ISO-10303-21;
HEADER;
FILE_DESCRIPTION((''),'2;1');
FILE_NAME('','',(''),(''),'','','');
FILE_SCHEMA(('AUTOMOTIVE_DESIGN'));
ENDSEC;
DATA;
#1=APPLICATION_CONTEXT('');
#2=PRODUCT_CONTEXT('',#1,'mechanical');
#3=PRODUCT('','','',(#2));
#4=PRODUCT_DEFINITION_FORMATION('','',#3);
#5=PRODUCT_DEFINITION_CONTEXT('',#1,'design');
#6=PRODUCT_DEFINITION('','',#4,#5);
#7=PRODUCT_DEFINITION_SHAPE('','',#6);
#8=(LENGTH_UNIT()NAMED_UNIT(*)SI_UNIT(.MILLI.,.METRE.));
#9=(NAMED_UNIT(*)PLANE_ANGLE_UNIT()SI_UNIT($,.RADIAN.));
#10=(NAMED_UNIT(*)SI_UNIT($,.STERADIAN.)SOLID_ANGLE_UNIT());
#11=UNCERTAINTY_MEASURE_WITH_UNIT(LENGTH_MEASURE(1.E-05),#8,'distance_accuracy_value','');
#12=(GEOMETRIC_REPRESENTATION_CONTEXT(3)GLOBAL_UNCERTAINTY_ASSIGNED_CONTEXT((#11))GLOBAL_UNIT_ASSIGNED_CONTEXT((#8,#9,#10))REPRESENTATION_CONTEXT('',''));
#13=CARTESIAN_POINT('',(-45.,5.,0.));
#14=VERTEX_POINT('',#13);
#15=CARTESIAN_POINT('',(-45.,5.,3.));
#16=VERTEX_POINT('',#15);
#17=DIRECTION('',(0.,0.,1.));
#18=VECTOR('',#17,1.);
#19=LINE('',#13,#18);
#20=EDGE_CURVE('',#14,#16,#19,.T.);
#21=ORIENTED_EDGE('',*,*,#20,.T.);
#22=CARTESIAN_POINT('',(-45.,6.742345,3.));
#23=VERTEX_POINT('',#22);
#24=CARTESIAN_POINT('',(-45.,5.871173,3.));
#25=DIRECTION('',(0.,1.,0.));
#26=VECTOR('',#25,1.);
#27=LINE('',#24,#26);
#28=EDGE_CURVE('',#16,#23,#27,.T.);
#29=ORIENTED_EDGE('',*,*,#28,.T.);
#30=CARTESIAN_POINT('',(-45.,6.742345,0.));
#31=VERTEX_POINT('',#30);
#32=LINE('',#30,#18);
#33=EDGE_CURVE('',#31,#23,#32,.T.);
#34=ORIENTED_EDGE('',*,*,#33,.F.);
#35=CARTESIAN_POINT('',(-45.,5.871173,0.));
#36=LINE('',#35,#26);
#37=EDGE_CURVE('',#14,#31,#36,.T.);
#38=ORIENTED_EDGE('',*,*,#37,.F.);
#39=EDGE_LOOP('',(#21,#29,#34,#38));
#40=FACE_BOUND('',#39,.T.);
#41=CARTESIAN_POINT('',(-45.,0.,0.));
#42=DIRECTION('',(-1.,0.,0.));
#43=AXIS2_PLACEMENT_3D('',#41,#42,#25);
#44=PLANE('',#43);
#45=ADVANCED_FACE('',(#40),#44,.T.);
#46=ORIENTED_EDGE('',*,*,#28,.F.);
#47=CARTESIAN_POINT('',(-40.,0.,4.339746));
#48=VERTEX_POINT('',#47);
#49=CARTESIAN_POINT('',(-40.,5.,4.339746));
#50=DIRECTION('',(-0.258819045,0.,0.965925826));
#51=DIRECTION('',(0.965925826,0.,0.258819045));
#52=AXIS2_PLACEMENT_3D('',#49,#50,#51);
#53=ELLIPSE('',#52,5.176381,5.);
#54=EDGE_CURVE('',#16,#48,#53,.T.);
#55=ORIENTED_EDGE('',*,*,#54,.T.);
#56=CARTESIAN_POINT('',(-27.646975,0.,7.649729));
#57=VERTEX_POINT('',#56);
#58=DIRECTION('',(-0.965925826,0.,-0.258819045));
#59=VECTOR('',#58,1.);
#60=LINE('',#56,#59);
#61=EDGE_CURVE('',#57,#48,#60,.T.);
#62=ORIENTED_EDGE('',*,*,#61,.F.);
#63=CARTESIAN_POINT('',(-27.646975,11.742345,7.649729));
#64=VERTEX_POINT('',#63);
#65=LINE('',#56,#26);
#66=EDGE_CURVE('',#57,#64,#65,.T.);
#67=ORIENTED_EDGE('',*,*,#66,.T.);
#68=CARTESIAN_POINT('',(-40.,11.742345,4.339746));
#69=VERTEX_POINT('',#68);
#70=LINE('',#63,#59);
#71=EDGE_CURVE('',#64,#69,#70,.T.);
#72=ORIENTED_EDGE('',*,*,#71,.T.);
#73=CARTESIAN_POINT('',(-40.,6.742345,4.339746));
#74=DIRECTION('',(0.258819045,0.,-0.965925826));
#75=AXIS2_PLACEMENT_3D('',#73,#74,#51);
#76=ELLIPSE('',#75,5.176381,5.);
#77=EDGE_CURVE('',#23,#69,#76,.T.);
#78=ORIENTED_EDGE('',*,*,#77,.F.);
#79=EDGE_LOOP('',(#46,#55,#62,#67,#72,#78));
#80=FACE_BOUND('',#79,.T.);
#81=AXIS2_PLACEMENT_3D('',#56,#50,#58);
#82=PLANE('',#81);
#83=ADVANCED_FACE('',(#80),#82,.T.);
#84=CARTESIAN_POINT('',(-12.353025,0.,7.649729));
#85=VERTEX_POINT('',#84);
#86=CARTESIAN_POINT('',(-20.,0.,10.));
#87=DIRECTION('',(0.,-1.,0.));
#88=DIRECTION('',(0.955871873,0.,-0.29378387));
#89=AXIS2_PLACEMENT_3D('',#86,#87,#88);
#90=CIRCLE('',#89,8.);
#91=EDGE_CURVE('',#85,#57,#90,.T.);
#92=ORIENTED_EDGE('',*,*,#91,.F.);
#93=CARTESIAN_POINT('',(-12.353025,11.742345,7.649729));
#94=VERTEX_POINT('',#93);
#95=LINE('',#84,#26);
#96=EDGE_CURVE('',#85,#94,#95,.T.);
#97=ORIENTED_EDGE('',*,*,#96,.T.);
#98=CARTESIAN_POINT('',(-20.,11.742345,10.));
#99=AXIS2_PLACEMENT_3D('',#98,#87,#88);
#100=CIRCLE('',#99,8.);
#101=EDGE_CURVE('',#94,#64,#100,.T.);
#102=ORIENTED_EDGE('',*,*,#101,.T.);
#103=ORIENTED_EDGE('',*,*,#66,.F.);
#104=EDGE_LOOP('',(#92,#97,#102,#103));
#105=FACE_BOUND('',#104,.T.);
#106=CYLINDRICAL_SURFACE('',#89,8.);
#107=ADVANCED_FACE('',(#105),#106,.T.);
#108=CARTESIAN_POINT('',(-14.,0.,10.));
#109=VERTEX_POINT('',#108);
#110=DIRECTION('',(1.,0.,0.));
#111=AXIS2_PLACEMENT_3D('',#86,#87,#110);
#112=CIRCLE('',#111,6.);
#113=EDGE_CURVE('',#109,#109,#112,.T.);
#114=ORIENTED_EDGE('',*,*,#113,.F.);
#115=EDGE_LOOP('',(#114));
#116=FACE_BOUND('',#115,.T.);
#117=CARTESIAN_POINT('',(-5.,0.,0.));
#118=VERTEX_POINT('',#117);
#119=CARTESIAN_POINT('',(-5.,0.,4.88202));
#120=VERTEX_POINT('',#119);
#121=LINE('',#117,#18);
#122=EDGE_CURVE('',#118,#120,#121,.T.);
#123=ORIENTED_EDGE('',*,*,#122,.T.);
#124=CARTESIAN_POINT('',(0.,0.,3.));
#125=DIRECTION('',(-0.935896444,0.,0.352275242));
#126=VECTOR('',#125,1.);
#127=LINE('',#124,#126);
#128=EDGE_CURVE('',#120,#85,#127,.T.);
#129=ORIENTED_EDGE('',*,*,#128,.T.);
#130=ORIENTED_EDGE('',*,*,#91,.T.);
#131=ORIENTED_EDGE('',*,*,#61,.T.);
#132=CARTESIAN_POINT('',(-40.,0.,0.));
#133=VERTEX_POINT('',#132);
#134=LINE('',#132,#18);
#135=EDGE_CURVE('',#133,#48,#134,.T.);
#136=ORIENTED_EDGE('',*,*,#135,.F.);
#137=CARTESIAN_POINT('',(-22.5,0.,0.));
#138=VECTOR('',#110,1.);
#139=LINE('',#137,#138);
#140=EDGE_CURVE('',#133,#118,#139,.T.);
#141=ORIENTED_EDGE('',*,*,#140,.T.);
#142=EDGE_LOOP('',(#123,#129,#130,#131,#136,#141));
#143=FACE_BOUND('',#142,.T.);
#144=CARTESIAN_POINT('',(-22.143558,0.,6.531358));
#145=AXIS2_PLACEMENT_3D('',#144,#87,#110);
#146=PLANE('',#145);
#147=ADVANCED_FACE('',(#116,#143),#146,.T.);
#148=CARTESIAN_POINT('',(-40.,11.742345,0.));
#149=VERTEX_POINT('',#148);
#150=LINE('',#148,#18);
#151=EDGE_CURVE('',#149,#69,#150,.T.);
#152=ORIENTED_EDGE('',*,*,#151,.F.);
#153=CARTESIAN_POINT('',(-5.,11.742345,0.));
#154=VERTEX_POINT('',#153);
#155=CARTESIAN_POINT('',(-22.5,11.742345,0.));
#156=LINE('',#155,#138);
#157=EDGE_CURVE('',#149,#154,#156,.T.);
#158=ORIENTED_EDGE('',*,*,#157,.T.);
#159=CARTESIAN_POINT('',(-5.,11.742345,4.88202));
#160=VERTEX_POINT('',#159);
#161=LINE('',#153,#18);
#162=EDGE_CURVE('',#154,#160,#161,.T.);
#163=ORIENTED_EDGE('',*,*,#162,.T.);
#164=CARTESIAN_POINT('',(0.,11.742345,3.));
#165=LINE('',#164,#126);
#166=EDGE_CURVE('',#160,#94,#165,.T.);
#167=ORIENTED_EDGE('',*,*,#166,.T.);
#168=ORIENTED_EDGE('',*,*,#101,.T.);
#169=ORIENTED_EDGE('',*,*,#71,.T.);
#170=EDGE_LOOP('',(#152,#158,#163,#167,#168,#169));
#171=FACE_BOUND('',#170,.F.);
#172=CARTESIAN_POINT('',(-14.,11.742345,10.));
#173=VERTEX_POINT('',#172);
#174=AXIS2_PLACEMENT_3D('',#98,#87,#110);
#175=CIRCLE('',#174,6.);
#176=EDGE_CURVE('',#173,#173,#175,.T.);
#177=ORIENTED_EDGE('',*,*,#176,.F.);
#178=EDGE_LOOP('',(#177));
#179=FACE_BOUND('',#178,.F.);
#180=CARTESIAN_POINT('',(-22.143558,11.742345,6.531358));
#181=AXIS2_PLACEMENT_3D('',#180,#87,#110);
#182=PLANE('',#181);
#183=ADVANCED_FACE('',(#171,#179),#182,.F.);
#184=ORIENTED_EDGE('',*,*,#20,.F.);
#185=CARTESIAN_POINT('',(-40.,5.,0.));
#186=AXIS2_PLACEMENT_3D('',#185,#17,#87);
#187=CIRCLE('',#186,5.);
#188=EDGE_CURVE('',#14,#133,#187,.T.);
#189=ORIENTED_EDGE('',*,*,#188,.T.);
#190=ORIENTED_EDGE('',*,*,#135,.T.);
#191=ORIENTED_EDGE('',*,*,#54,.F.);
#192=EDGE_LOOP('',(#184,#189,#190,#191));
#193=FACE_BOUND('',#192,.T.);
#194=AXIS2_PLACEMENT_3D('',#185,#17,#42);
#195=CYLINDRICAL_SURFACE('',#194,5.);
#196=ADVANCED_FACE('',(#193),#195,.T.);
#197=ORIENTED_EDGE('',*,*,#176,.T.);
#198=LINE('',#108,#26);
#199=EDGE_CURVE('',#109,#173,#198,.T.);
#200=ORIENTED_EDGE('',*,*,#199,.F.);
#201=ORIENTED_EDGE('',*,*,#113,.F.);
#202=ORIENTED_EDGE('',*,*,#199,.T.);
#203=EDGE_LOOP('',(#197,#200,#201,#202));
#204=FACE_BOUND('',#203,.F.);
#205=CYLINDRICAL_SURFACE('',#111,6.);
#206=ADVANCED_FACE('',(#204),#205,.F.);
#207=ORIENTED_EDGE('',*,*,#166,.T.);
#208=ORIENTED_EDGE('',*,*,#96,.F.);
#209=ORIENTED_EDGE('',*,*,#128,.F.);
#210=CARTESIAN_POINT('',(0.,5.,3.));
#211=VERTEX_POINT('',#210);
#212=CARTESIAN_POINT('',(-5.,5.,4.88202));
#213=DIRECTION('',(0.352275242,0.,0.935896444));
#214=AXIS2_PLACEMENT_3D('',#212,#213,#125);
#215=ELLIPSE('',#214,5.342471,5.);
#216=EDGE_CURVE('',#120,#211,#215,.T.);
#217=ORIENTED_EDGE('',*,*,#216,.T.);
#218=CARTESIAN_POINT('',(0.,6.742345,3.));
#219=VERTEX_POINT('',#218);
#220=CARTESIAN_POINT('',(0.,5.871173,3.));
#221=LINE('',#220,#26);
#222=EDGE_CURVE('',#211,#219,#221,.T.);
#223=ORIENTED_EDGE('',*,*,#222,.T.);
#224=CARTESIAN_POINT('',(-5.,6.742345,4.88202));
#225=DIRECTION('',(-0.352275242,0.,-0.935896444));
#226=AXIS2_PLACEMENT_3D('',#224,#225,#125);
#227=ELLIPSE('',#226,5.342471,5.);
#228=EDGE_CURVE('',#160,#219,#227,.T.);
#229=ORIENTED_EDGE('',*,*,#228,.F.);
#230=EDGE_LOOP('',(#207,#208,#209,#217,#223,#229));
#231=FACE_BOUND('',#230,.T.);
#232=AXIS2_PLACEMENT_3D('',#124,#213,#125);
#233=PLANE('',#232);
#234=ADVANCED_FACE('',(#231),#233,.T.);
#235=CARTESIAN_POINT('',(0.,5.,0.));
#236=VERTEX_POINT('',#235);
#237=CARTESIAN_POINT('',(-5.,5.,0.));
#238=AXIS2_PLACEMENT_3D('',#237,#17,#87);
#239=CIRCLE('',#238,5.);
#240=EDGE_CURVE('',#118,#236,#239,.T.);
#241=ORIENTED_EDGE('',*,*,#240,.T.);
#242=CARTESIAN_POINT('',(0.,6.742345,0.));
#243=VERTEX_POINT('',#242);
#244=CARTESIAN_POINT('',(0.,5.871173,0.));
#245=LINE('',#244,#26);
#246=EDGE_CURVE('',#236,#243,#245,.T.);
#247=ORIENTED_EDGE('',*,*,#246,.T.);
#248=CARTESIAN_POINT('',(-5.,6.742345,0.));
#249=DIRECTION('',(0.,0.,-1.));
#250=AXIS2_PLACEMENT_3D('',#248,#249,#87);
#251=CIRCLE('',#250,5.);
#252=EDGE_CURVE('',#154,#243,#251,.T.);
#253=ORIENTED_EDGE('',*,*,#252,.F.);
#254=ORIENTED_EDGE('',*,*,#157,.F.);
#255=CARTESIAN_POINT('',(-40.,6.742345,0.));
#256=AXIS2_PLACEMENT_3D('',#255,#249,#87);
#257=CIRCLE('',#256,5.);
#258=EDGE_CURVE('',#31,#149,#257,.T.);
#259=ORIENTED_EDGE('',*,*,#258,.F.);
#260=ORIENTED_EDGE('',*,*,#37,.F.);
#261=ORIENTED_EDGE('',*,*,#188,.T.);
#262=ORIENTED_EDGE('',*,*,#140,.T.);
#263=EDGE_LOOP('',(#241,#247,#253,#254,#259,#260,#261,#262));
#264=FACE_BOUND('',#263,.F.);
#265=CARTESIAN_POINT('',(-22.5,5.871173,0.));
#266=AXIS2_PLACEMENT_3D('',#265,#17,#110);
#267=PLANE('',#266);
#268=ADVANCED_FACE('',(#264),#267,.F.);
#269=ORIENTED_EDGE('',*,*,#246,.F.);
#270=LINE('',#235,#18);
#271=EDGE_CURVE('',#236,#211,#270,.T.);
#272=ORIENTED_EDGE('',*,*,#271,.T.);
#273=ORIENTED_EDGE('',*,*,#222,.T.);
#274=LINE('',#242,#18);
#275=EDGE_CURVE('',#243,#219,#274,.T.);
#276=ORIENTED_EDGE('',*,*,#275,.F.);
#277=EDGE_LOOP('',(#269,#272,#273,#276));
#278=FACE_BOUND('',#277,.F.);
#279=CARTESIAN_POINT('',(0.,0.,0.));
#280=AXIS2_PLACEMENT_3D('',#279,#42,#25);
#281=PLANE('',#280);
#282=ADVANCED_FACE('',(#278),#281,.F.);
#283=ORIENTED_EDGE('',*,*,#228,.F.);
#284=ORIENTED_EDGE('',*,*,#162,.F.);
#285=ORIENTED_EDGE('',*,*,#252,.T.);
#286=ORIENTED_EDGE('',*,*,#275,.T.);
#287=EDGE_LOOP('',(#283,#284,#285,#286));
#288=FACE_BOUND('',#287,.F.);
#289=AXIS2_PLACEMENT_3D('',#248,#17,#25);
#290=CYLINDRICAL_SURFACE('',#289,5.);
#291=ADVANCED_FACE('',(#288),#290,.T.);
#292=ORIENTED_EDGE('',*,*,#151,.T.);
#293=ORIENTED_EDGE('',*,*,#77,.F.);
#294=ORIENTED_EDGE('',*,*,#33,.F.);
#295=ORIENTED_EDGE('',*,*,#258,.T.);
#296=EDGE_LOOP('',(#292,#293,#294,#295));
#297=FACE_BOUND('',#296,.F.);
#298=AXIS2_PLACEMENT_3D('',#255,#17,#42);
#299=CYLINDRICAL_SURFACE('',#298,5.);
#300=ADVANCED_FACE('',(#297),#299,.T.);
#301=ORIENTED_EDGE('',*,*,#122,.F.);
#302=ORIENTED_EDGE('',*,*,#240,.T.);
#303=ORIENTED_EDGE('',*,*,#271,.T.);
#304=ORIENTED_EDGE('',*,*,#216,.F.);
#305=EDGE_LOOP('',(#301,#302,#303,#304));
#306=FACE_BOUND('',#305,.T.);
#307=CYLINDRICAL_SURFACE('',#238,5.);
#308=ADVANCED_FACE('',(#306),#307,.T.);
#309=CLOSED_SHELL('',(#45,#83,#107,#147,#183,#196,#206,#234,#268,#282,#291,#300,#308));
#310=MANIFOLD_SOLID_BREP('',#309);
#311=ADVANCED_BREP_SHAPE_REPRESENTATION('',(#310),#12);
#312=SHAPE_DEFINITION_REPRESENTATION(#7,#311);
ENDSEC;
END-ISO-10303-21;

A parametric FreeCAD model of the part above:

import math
import FreeCAD as App
import Part
import Sketcher

V = App.Vector
Q = App.Units.Quantity


def edges_at(feature, points):
    """Names of the edges that pass closest to the given points."""
    edges = feature.Shape.Edges
    near = lambda p: min(range(len(edges)), key=lambda i: edges[i].distToShape(Part.Vertex(*p))[0])
    return sorted({f"Edge{near(p) + 1}" for p in points})


def add_polygon(sketch, points):
    """Adds a closed chain of lines whose ends are joined by coincident constraints."""
    first, n = sketch.GeometryCount, len(points)
    for a, b in zip(points, points[1:] + points[:1]):
        sketch.addGeometry(Part.LineSegment(App.Vector(*a, 0), App.Vector(*b, 0)), False)
    for i in range(n):
        sketch.addConstraint(Sketcher.Constraint("Coincident", first + i, 2, first + (i + 1) % n, 1))

doc = App.newDocument("Part")
body = doc.addObject("PartDesign::Body", "Body")

# Sketch on XY plane
sketch1 = body.newObject("Sketcher::SketchObject", "Sketch")
sketch1.AttachmentSupport = (doc.getObject("XY_Plane"), [""])
sketch1.MapMode = "FlatFace"
add_polygon(sketch1, [(-45, 11.742345), (-45, 0), (0, 0), (0, 11.742345)])  # lines 0-3
sketch1.addConstraint([
    Sketcher.Constraint("Vertical", 0),
    Sketcher.Constraint("Horizontal", 1),
    Sketcher.Constraint("Vertical", 2),
    Sketcher.Constraint("Horizontal", 3),
    Sketcher.Constraint("Coincident", 1, 2, -1, 1),
    Sketcher.Constraint("DistanceX", 1, 1, 1, 2, 45.0),
    Sketcher.Constraint("DistanceY", 0, 2, 0, 1, 11.742345),
])
pad1 = body.newObject("PartDesign::Pad", "Pad")
pad1.Profile = sketch1
pad1.Length = 3

# Sketch on XZ plane
sketch2 = body.newObject("Sketcher::SketchObject", "Sketch001")
sketch2.AttachmentSupport = (doc.getObject("XZ_Plane"), [""])
sketch2.MapMode = "FlatFace"
sketch2.addGeometry([
    Part.LineSegment(V(-45, 3, 0), V(0, 3, 0)),  # 0
    Part.LineSegment(V(0, 3, 0), V(-12.353025, 7.649729, 0)),  # 1
    Part.ArcOfCircle(Part.Circle(V(-20, 10, 0), V(0, 0, 1), 8), math.radians(-17.084627), math.radians(197.084627)),  # 2
    Part.LineSegment(V(-27.646975, 7.649729, 0), V(-45, 3, 0)),  # 3
    Part.Circle(V(-20, 10, 0), V(0, 0, 1), 6),  # 4
], False)
sketch2.addConstraint([
    Sketcher.Constraint("Coincident", 0, 2, 1, 1),
    Sketcher.Constraint("Coincident", 1, 2, 2, 1),
    Sketcher.Constraint("Coincident", 2, 2, 3, 1),
    Sketcher.Constraint("Coincident", 3, 2, 0, 1),
    Sketcher.Constraint("Horizontal", 0),
    Sketcher.Constraint("Coincident", 4, 3, 2, 3),
    Sketcher.Constraint("PointOnObject", 0, 2, -2),
    Sketcher.Constraint("Horizontal", 1, 2, 2, 2),
    Sketcher.Constraint("Diameter", 4, 12.0),
    Sketcher.Constraint("Radius", 2, 8.0),
    Sketcher.Constraint("DistanceX", 0, 1, 0, 2, 45.0),
    Sketcher.Constraint("Angle", 3, Q("-165 deg")),
    Sketcher.Constraint("DistanceX", 2, 3, -1, 1, 20.0),
    Sketcher.Constraint("DistanceY", -1, 1, 2, 3, 10.0),
    Sketcher.Constraint("DistanceY", -1, 1, 0, 2, 3.0),
])
pad2 = body.newObject("PartDesign::Pad", "Pad001")
pad2.Profile = sketch2
pad2.Length = 11.742345
pad2.Reversed = True
doc.recompute()

fillet = body.newObject("PartDesign::Fillet", "Fillet")
fillet.Base = (pad2, edges_at(pad2, [
    (-45, 0, 1.5),
    (0, 0, 1.5),
    (0, 11.742, 1.5),
    (-45, 11.742, 1.5),
]))
fillet.Radius = 5

doc.recompute()
